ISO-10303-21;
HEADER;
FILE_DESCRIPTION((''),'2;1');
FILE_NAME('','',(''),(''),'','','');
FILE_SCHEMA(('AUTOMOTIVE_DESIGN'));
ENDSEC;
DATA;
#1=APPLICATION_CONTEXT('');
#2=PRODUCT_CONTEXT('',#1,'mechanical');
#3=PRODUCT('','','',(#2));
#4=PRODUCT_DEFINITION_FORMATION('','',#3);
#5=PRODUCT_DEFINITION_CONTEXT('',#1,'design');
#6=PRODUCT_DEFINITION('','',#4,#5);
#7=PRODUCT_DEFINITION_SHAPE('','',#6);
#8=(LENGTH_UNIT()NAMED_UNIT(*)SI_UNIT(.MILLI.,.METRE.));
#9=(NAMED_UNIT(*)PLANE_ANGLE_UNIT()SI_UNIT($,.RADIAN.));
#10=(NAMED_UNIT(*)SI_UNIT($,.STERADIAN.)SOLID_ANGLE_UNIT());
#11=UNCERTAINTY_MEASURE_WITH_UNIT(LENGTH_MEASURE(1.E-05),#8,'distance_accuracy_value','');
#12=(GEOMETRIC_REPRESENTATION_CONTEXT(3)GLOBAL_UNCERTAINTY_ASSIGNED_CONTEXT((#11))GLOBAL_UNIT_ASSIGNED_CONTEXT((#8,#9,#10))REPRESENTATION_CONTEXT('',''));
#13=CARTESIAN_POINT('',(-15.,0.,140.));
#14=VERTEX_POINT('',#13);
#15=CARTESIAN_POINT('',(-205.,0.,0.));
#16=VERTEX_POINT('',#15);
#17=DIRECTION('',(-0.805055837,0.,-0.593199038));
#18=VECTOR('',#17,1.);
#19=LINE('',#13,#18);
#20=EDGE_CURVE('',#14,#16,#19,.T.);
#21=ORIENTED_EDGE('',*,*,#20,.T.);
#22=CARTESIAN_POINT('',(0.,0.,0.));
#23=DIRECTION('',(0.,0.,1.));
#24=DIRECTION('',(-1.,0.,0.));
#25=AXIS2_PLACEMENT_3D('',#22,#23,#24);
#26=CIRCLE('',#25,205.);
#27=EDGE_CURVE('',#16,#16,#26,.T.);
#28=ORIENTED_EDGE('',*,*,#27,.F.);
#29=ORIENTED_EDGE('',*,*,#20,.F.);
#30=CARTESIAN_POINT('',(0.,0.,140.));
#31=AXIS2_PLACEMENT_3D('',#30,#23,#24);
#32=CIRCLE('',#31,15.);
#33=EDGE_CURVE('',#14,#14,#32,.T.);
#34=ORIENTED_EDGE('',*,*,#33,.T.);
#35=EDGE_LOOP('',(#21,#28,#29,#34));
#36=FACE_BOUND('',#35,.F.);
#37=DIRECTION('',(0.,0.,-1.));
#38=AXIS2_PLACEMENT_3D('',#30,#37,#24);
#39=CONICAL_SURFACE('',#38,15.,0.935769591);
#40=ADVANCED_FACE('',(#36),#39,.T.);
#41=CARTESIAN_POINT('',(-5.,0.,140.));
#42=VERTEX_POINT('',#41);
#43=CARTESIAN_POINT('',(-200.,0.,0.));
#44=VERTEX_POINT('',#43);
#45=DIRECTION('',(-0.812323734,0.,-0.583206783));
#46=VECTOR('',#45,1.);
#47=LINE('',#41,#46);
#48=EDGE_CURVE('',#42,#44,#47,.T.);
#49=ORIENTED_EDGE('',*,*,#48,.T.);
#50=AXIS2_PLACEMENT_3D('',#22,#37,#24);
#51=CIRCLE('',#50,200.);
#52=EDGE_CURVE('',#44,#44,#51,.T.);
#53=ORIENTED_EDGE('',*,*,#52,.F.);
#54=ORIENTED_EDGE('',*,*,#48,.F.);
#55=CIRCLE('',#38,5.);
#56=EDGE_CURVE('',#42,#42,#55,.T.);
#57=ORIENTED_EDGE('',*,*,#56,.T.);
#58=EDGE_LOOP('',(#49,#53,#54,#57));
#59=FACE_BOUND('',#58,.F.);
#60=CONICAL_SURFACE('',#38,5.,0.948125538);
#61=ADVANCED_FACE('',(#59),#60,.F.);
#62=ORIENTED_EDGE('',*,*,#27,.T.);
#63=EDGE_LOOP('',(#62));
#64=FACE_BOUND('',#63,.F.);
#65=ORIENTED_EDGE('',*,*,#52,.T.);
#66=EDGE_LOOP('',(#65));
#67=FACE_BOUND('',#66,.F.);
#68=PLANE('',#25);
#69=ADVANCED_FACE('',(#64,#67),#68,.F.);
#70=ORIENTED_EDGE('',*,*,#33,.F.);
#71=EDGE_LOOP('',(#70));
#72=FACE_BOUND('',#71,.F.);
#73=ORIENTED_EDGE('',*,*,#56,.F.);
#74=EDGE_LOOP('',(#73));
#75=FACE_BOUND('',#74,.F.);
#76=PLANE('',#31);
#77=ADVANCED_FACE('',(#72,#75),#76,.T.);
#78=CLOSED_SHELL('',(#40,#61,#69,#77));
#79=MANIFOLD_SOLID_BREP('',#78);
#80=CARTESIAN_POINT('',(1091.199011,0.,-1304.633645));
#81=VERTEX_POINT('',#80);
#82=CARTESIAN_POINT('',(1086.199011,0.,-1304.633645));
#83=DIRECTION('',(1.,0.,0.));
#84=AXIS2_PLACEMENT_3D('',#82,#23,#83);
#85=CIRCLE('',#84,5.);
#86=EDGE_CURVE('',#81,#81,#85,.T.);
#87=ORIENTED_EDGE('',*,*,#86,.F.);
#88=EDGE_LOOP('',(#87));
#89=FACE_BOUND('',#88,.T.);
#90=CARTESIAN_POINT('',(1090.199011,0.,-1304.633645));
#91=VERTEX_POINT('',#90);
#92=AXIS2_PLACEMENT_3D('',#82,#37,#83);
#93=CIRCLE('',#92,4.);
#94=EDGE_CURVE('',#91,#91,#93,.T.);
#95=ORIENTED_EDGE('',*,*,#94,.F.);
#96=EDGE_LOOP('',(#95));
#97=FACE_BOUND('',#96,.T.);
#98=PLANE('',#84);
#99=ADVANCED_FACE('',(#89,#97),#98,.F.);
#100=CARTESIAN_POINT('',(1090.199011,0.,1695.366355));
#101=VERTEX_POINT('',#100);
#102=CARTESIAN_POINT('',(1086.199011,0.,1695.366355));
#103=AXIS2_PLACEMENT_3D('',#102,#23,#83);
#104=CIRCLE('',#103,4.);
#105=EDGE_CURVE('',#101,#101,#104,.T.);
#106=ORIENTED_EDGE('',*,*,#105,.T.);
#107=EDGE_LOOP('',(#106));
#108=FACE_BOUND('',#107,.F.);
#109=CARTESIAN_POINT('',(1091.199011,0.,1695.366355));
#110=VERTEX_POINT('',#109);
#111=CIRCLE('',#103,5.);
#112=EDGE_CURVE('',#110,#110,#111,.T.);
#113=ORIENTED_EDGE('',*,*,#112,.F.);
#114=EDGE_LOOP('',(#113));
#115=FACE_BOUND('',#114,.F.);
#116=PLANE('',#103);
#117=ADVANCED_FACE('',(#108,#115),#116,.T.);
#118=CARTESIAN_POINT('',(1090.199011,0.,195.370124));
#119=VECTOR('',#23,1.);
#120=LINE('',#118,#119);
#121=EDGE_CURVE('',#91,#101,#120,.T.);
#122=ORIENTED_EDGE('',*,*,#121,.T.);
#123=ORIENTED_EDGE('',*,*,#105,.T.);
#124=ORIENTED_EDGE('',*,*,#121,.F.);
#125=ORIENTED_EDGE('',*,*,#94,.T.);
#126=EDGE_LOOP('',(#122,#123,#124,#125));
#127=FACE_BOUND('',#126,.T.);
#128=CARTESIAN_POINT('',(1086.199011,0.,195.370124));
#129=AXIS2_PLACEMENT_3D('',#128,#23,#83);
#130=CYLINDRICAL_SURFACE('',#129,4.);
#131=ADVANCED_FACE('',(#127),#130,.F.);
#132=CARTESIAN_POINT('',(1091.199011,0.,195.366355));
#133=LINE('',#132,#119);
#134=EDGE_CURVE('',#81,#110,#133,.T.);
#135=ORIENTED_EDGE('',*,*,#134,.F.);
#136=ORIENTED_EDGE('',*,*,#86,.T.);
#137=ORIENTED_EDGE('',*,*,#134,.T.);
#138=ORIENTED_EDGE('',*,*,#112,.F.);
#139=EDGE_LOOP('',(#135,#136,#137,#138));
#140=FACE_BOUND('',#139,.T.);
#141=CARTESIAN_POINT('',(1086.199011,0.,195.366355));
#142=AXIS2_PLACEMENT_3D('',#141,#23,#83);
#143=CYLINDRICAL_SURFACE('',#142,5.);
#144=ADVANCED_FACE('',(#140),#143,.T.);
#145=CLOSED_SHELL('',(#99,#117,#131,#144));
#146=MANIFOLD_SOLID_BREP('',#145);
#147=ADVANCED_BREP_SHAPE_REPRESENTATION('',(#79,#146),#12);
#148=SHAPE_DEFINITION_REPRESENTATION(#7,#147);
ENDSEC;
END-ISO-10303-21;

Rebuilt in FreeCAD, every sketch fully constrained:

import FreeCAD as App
import Part
import Sketcher
from FreeCAD import Vector
Q = App.Units.Quantity

doc = App.newDocument("Part")
params = doc.addObject("Spreadsheet::Sheet", "Params")
for row, (alias, value) in enumerate([
    ("sketch1_width", "205 mm"),
    ("sketch1_width2", "15 mm"),
    ("sketch1_height", "140 mm"),
    ("revolution_angle", "360 deg"),
    ("sketch2_width", "200 mm"),
    ("sketch2_width2", "5 mm"),
    ("sketch2_height", "140 mm"),
    ("groove_angle", "360 deg"),
    ("sketch3_width", "5 mm"),
    ("sketch3_height", "3000 mm"),
    ("revolution2_angle", "360 deg"),
    ("sketch4_width", "4 mm"),
    ("groove2_angle", "360 deg"),
], start=1):
    params.set(f"A{row}", alias)
    params.set(f"B{row}", "=" + value)
    params.setAlias(f"B{row}", alias)

body = doc.addObject("PartDesign::Body", "Body")

# Sketch on XZ plane
sketch1 = doc.addObject("Sketcher::SketchObject", "Sketch")
body.addObject(sketch1)
sketch1.AttachmentSupport = (doc.XZ_Plane, [""])
sketch1.MapMode = "FlatFace"
sketch1.addGeometry([
    Part.LineSegment(Vector(-205, 0, 0), Vector(0, 0, 0)),
    Part.LineSegment(Vector(0, 0, 0), Vector(0, 140, 0)),
    Part.LineSegment(Vector(0, 140, 0), Vector(-15, 140, 0)),
    Part.LineSegment(Vector(-15, 140, 0), Vector(-205, 0, 0)),
], False)
sketch1.addConstraint([
    Sketcher.Constraint("Coincident", 0, 2, 1, 1),
    Sketcher.Constraint("Coincident", 1, 2, 2, 1),
    Sketcher.Constraint("Coincident", 2, 2, 3, 1),
    Sketcher.Constraint("Coincident", 3, 2, 0, 1),
    Sketcher.Constraint("Horizontal", 0),
    Sketcher.Constraint("Vertical", 1),
    Sketcher.Constraint("Horizontal", 2),
    Sketcher.Constraint("Coincident", 0, 2, -1, 1),
    Sketcher.Constraint("DistanceX", 0, 1, 0, 2, Q("205 mm")),
    Sketcher.Constraint("DistanceX", 2, 2, 2, 1, Q("15 mm")),
    Sketcher.Constraint("DistanceY", 1, 1, 1, 2, Q("140 mm")),
])
sketch1.setExpression("Constraints[8]", "Params.sketch1_width")
sketch1.setExpression("Constraints[9]", "Params.sketch1_width2")
sketch1.setExpression("Constraints[10]", "Params.sketch1_height")
revolution = doc.addObject("PartDesign::Revolution", "Revolution")
body.addObject(revolution)
revolution.Profile = sketch1
revolution.ReferenceAxis = (sketch1, ["V_Axis"])
revolution.setExpression("Angle", "Params.revolution_angle")

# Sketch on XZ plane
sketch2 = doc.addObject("Sketcher::SketchObject", "Sketch001")
body.addObject(sketch2)
sketch2.AttachmentSupport = (doc.XZ_Plane, [""])
sketch2.MapMode = "FlatFace"
sketch2.addGeometry([
    Part.LineSegment(Vector(-5, 140, 0), Vector(-200, 0, 0)),
    Part.LineSegment(Vector(-200, 0, 0), Vector(0, 0, 0)),
    Part.LineSegment(Vector(0, 0, 0), Vector(0, 140, 0)),
    Part.LineSegment(Vector(0, 140, 0), Vector(-5, 140, 0)),
], False)
sketch2.addConstraint([
    Sketcher.Constraint("Coincident", 0, 2, 1, 1),
    Sketcher.Constraint("Coincident", 1, 2, 2, 1),
    Sketcher.Constraint("Coincident", 2, 2, 3, 1),
    Sketcher.Constraint("Coincident", 3, 2, 0, 1),
    Sketcher.Constraint("Horizontal", 1),
    Sketcher.Constraint("Vertical", 2),
    Sketcher.Constraint("Horizontal", 3),
    Sketcher.Constraint("Coincident", 1, 2, -1, 1),
    Sketcher.Constraint("DistanceX", 1, 1, 1, 2, Q("200 mm")),
    Sketcher.Constraint("DistanceX", 3, 2, 3, 1, Q("5 mm")),
    Sketcher.Constraint("DistanceY", 2, 1, 2, 2, Q("140 mm")),
])
sketch2.setExpression("Constraints[8]", "Params.sketch2_width")
sketch2.setExpression("Constraints[9]", "Params.sketch2_width2")
sketch2.setExpression("Constraints[10]", "Params.sketch2_height")
groove = doc.addObject("PartDesign::Groove", "Groove")
body.addObject(groove)
groove.Profile = sketch2
groove.ReferenceAxis = (sketch2, ["V_Axis"])
groove.setExpression("Angle", "Params.groove_angle")
body2 = doc.addObject("PartDesign::Body", "Body001")

# Sketch on XZ plane
sketch3 = doc.addObject("Sketcher::SketchObject", "Sketch002")
body2.addObject(sketch3)
sketch3.AttachmentSupport = (doc.getObject("XZ_Plane001"), [""])
sketch3.MapMode = "FlatFace"
sketch3.addGeometry([
    Part.LineSegment(Vector(1086, 1695, 0), Vector(1086, -1305, 0)),
    Part.LineSegment(Vector(1086, -1305, 0), Vector(1091, -1305, 0)),
    Part.LineSegment(Vector(1091, -1305, 0), Vector(1091, 1695, 0)),
    Part.LineSegment(Vector(1091, 1695, 0), Vector(1086, 1695, 0)),
], False)
sketch3.addGeometry(Part.LineSegment(Vector(1086, -1305, 0), Vector(1086, 1695, 0)), True)  # axis
sketch3.addConstraint([
    Sketcher.Constraint("Coincident", 0, 2, 1, 1),
    Sketcher.Constraint("Coincident", 1, 2, 2, 1),
    Sketcher.Constraint("Coincident", 2, 2, 3, 1),
    Sketcher.Constraint("Coincident", 3, 2, 0, 1),
    Sketcher.Constraint("Vertical", 0),
    Sketcher.Constraint("Horizontal", 1),
    Sketcher.Constraint("Vertical", 2),
    Sketcher.Constraint("Horizontal", 3),
    Sketcher.Constraint("Vertical", 4),
    Sketcher.Constraint("Coincident", 4, 1, 0, 2),
    Sketcher.Constraint("Horizontal", 2, 2, 4, 2),
    Sketcher.Constraint("DistanceX", 1, 1, 1, 2, Q("5 mm")),
    Sketcher.Constraint("DistanceY", 0, 2, 0, 1, Q("3000 mm")),
    Sketcher.Constraint("DistanceX", -1, 1, 0, 2, Q("1086.199011 mm")),
    Sketcher.Constraint("DistanceY", 0, 2, -1, 1, Q("1304.633645 mm")),
])
sketch3.setExpression("Constraints[11]", "Params.sketch3_width")
sketch3.setExpression("Constraints[12]", "Params.sketch3_height")
revolution2 = doc.addObject("PartDesign::Revolution", "Revolution001")
body2.addObject(revolution2)
revolution2.Profile = sketch3
revolution2.ReferenceAxis = (sketch3, ["Axis0"])
revolution2.setExpression("Angle", "Params.revolution2_angle")

# Sketch on XZ plane
sketch4 = doc.addObject("Sketcher::SketchObject", "Sketch003")
body2.addObject(sketch4)
sketch4.AttachmentSupport = (doc.getObject("XZ_Plane001"), [""])
sketch4.MapMode = "FlatFace"
sketch4.addGeometry([
    Part.LineSegment(Vector(1086.2, 1695.4, 0), Vector(1086.2, -1304.6, 0)),
    Part.LineSegment(Vector(1086.2, -1304.6, 0), Vector(1090.2, -1304.6, 0)),
    Part.LineSegment(Vector(1090.2, -1304.6, 0), Vector(1090.2, 1695.4, 0)),
    Part.LineSegment(Vector(1090.2, 1695.4, 0), Vector(1086.2, 1695.4, 0)),
], False)
sketch4.addGeometry(Part.LineSegment(Vector(1086.2, 1695.4, 0), Vector(1086.2, -1304.6, 0)), True)  # axis
sketch4.addConstraint([
    Sketcher.Constraint("Coincident", 0, 2, 1, 1),
    Sketcher.Constraint("Coincident", 1, 2, 2, 1),
    Sketcher.Constraint("Coincident", 2, 2, 3, 1),
    Sketcher.Constraint("Coincident", 3, 2, 0, 1),
    Sketcher.Constraint("Vertical", 0),
    Sketcher.Constraint("Horizontal", 1),
    Sketcher.Constraint("Vertical", 2),
    Sketcher.Constraint("Horizontal", 3),
    Sketcher.Constraint("Vertical", 4),
    Sketcher.Constraint("Coincident", 4, 1, 3, 2),
    Sketcher.Constraint("Horizontal", 1, 2, 4, 2),
    Sketcher.Constraint("DistanceX", 1, 1, 1, 2, Q("4 mm")),
    Sketcher.Constraint("DistanceY", 0, 2, 0, 1, Q("3000.007538 mm")),
    Sketcher.Constraint("DistanceX", -1, 1, 0, 2, Q("1086.199011 mm")),
    Sketcher.Constraint("DistanceY", 0, 2, -1, 1, Q("1304.633645 mm")),
])
sketch4.setExpression("Constraints[11]", "Params.sketch4_width")
groove2 = doc.addObject("PartDesign::Groove", "Groove001")
body2.addObject(groove2)
groove2.Profile = sketch4
groove2.ReferenceAxis = (sketch4, ["Axis0"])
groove2.setExpression("Angle", "Params.groove2_angle")

doc.recompute()
